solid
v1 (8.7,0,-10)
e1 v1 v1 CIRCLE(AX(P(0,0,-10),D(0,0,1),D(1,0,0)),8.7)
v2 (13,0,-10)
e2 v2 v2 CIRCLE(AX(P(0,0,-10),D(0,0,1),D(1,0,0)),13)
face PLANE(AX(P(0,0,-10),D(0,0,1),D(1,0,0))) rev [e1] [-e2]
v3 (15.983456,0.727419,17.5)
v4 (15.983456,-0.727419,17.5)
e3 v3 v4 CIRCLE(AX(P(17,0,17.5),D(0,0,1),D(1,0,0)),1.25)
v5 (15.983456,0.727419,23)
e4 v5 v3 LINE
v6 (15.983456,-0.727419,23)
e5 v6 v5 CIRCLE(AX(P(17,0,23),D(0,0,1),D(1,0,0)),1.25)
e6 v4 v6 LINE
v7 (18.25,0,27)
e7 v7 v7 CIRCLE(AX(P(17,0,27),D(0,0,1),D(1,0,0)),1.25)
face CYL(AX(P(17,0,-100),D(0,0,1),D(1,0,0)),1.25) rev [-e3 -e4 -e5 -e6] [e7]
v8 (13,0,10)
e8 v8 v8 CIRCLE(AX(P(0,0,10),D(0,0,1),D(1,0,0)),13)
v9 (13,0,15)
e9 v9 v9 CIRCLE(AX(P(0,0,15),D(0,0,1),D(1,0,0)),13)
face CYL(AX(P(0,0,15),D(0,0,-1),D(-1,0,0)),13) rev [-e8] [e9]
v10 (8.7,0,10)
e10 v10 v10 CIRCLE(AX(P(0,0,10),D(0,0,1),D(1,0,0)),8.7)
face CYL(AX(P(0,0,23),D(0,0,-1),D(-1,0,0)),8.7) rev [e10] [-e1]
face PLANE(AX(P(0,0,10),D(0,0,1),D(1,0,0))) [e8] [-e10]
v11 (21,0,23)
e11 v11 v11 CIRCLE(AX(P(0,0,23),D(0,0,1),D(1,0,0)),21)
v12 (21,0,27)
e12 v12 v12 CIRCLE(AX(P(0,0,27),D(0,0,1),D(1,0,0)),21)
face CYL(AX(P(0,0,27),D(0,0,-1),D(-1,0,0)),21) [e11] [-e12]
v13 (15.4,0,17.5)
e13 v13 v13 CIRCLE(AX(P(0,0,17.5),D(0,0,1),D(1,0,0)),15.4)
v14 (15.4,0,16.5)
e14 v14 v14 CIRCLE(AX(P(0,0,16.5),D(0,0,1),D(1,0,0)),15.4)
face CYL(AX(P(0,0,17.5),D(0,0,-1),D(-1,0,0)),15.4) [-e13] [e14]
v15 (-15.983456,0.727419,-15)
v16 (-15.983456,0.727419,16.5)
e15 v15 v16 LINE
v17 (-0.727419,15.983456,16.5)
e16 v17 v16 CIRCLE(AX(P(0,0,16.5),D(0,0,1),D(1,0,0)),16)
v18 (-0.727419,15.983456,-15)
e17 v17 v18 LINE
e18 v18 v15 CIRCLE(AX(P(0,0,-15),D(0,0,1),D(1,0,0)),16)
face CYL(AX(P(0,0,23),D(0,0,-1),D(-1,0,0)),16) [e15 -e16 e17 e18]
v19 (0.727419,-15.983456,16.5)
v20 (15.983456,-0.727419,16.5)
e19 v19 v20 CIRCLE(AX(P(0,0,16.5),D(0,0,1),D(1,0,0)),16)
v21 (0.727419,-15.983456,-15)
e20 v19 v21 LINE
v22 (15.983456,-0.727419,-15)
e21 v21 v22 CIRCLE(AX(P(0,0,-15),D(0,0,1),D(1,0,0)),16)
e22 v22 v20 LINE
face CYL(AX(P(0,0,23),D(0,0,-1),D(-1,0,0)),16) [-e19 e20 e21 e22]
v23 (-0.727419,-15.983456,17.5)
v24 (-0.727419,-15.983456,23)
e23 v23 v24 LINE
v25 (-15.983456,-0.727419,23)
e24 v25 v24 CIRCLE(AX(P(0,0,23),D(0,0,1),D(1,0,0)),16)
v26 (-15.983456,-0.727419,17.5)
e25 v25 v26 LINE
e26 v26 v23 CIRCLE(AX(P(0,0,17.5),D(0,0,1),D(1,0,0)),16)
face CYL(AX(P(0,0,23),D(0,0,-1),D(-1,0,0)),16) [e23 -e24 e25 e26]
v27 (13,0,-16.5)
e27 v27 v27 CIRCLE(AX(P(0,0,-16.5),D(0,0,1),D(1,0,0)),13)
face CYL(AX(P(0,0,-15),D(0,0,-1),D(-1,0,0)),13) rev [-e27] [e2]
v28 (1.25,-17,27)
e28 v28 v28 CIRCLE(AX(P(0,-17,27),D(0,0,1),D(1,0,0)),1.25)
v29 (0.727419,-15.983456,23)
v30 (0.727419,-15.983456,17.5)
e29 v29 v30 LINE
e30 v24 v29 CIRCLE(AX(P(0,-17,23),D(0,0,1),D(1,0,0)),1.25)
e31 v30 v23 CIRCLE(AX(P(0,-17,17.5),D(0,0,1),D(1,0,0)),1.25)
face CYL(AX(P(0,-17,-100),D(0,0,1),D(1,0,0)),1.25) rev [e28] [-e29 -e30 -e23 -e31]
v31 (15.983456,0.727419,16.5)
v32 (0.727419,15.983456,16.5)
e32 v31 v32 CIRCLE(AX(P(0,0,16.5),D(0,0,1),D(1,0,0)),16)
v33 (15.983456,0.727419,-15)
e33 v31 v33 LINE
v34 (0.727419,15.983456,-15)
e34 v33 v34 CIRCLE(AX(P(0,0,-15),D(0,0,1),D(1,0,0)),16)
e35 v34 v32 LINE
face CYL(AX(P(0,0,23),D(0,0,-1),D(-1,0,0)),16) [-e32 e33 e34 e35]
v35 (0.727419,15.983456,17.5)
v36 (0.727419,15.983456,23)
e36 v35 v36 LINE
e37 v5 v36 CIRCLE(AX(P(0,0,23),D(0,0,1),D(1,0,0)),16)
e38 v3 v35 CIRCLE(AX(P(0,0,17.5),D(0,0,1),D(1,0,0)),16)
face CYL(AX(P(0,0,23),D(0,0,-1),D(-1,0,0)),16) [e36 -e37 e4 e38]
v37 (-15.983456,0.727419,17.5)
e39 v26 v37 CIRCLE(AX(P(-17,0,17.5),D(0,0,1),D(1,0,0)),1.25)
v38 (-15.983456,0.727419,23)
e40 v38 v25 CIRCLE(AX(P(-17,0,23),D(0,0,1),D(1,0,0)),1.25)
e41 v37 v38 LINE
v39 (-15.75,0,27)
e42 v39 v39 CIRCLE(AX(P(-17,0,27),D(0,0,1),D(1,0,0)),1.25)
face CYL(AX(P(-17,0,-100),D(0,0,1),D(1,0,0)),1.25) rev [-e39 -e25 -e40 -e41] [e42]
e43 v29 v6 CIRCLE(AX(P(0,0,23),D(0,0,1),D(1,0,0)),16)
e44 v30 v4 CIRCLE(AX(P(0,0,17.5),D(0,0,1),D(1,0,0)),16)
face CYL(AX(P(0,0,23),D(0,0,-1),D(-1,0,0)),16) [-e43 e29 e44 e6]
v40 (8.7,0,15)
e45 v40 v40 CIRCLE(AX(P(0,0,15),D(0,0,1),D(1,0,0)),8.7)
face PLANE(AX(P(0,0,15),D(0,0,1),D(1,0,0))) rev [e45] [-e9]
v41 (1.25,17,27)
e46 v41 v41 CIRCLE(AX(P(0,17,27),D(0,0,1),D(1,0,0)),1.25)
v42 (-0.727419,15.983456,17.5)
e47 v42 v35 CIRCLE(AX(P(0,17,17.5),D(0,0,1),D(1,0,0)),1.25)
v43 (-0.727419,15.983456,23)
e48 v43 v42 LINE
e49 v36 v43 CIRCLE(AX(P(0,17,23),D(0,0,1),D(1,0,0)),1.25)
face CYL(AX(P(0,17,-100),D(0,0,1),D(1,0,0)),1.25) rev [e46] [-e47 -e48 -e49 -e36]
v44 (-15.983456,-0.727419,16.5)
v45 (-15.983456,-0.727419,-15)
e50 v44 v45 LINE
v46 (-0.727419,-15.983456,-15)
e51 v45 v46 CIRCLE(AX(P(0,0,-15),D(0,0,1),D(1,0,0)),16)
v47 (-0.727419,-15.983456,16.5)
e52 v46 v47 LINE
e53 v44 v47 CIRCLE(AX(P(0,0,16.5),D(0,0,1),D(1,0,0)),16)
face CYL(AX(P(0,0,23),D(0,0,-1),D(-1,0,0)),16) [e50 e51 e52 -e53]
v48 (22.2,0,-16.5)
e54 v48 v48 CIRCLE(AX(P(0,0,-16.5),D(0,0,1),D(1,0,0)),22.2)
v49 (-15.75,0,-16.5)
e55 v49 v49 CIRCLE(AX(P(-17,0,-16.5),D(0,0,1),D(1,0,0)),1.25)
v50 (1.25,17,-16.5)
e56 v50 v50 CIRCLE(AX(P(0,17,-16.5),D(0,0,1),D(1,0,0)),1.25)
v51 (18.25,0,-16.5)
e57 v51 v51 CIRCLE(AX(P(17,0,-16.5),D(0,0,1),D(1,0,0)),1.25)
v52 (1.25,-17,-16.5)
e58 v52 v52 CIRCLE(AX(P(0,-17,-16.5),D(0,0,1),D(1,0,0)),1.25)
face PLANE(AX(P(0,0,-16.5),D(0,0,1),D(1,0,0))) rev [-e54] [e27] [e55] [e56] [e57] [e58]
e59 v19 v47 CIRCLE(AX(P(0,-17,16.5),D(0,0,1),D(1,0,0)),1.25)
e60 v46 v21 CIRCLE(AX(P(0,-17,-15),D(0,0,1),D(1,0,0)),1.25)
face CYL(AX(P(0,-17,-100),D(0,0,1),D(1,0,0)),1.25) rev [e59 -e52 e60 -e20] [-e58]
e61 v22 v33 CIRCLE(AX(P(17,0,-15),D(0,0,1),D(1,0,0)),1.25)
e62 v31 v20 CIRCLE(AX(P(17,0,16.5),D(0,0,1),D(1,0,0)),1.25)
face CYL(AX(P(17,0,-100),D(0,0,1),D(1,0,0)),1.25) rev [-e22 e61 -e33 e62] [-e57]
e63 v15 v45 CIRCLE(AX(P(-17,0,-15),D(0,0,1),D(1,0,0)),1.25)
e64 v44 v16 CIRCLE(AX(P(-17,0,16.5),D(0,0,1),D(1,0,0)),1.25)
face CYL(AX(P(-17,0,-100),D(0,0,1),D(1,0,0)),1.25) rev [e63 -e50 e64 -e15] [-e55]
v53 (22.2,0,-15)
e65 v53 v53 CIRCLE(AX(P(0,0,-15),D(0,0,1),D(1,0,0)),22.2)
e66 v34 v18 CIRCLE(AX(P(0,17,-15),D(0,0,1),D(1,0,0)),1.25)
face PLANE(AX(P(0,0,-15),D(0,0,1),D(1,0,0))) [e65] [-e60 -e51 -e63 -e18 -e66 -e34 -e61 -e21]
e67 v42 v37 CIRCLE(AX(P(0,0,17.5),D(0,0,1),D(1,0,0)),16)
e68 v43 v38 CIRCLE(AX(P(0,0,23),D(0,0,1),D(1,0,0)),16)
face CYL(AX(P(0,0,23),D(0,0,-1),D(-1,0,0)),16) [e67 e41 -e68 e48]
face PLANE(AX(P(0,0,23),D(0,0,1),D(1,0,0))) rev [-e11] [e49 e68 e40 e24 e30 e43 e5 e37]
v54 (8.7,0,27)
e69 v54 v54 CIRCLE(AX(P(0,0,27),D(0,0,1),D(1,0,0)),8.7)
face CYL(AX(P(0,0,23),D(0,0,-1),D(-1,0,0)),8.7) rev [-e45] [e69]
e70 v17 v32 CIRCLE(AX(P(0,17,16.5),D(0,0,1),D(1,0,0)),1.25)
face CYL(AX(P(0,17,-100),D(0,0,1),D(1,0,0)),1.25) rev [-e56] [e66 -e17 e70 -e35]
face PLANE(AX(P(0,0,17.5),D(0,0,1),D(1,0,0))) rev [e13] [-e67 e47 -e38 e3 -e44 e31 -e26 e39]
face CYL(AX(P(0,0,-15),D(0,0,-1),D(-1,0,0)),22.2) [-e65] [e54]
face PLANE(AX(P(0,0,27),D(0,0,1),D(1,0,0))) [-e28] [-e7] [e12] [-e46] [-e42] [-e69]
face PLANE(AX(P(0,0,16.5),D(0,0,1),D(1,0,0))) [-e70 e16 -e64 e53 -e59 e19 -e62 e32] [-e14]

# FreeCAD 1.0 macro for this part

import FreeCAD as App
import Part
import Sketcher

doc = App.newDocument("Part")
body = doc.addObject("PartDesign::Body", "Body")

sketch1 = body.newObject("Sketcher::SketchObject", "Sketch")
sketch1.AttachmentSupport = (doc.getObject("XY_Plane"), [""])
sketch1.MapMode = "FlatFace"
sketch1.AttachmentOffset = App.Placement(App.Vector(0, 0, -15), App.Rotation())
sketch1.addGeometry([
    Part.Circle(App.Vector(0, 0, 0), App.Vector(0, 0, 1), 16),
    Part.Circle(App.Vector(0, 0, 0), App.Vector(0, 0, 1), 8.7),
], False)
sketch1.addConstraint([
    Sketcher.Constraint("Coincident", 0, 3, -1, 1),
    Sketcher.Constraint("Coincident", 1, 3, -1, 1),
    Sketcher.Constraint("Diameter", 0, 32.0),
    Sketcher.Constraint("Diameter", 1, 17.4),
])
pad1 = body.newObject("PartDesign::Pad", "Pad")
pad1.Profile = sketch1
pad1.Length = 38

sketch2 = body.newObject("Sketcher::SketchObject", "Sketch001")
sketch2.AttachmentSupport = (doc.getObject("XY_Plane"), [""])
sketch2.MapMode = "FlatFace"
sketch2.AttachmentOffset = App.Placement(App.Vector(0, 0, -16.5), App.Rotation())
sketch2.addGeometry([
    Part.Circle(App.Vector(0, 0, 0), App.Vector(0, 0, 1), 22.2),
    Part.Circle(App.Vector(0, 0, 0), App.Vector(0, 0, 1), 13),
], False)
sketch2.addConstraint([
    Sketcher.Constraint("Coincident", 0, 3, -1, 1),
    Sketcher.Constraint("Coincident", 1, 3, -1, 1),
    Sketcher.Constraint("Diameter", 1, 26.0),
    Sketcher.Constraint("Diameter", 0, 44.4),
])
pad2 = body.newObject("PartDesign::Pad", "Pad001")
pad2.Profile = sketch2
pad2.Length = 1.5

sketch3 = body.newObject("Sketcher::SketchObject", "Sketch002")
sketch3.AttachmentSupport = (doc.getObject("XY_Plane"), [""])
sketch3.MapMode = "FlatFace"
sketch3.AttachmentOffset = App.Placement(App.Vector(0, 0, 23), App.Rotation())
sketch3.addGeometry([
    Part.Circle(App.Vector(0, 0, 0), App.Vector(0, 0, 1), 21),
    Part.Circle(App.Vector(0, 0, 0), App.Vector(0, 0, 1), 8.7),
], False)
sketch3.addConstraint([
    Sketcher.Constraint("Coincident", 0, 3, -1, 1),
    Sketcher.Constraint("Coincident", 1, 3, -1, 1),
    Sketcher.Constraint("Diameter", 0, 42.0),
    Sketcher.Constraint("Diameter", 1, 17.4),
])
pad3 = body.newObject("PartDesign::Pad", "Pad002")
pad3.Profile = sketch3
pad3.Length = 4

sketch4 = body.newObject("Sketcher::SketchObject", "Sketch003")
sketch4.AttachmentSupport = (doc.getObject("XY_Plane"), [""])
sketch4.MapMode = "FlatFace"
sketch4.AttachmentOffset = App.Placement(App.Vector(0, 0, -15), App.Rotation())
sketch4.addGeometry(Part.Circle(App.Vector(0, 0, 0), App.Vector(0, 0, 1), 13), False)
sketch4.addConstraint([
    Sketcher.Constraint("Coincident", 0, 3, -1, 1),
    Sketcher.Constraint("Diameter", 0, 26.0),
])
pocket1 = body.newObject("PartDesign::Pocket", "Pocket")
pocket1.Profile = sketch4
pocket1.Length = 5
pocket1.Reversed = True

sketch5 = body.newObject("Sketcher::SketchObject", "Sketch004")
sketch5.AttachmentSupport = (doc.getObject("XY_Plane"), [""])
sketch5.MapMode = "FlatFace"
sketch5.AttachmentOffset = App.Placement(App.Vector(0, 0, 10), App.Rotation())
sketch5.addGeometry(Part.Circle(App.Vector(0, 0, 0), App.Vector(0, 0, 1), 13), False)
sketch5.addConstraint([
    Sketcher.Constraint("Coincident", 0, 3, -1, 1),
    Sketcher.Constraint("Diameter", 0, 26.0),
])
pocket2 = body.newObject("PartDesign::Pocket", "Pocket001")
pocket2.Profile = sketch5
pocket2.Length = 5
pocket2.Reversed = True

sketch6 = body.newObject("Sketcher::SketchObject", "Sketch005")
sketch6.AttachmentSupport = (doc.getObject("XY_Plane"), [""])
sketch6.MapMode = "FlatFace"
sketch6.AttachmentOffset = App.Placement(App.Vector(0, 0, 16.5), App.Rotation())
sketch6.addGeometry([
    Part.Circle(App.Vector(0, 0, 0), App.Vector(0, 0, 1), 17),
    Part.Circle(App.Vector(0, 0, 0), App.Vector(0, 0, 1), 15.4),
], False)
sketch6.addConstraint([
    Sketcher.Constraint("Coincident", 0, 3, -1, 1),
    Sketcher.Constraint("Coincident", 1, 3, -1, 1),
    Sketcher.Constraint("Diameter", 0, 34.0),
    Sketcher.Constraint("Diameter", 1, 30.8),
])
pocket3 = body.newObject("PartDesign::Pocket", "Pocket002")
pocket3.Profile = sketch6
pocket3.Length = 1
pocket3.Reversed = True

sketch7 = body.newObject("Sketcher::SketchObject", "Sketch006")
sketch7.AttachmentSupport = (doc.getObject("XY_Plane"), [""])
sketch7.MapMode = "FlatFace"
sketch7.addGeometry([
    Part.Circle(App.Vector(17, 0, 0), App.Vector(0, 0, 1), 1.25),
    Part.Circle(App.Vector(0, 17, 0), App.Vector(0, 0, 1), 1.25),
    Part.Circle(App.Vector(-17, 0, 0), App.Vector(0, 0, 1), 1.25),
    Part.Circle(App.Vector(0, -17, 0), App.Vector(0, 0, 1), 1.25),
], False)
sketch7.addConstraint([
    Sketcher.Constraint("Equal", 0, 1),
    Sketcher.Constraint("Equal", 1, 2),
    Sketcher.Constraint("Equal", 2, 3),
    Sketcher.Constraint("Symmetric", 0, 3, 2, 3, -1, 1),
    Sketcher.Constraint("Symmetric", 1, 3, 3, 3, -1, 1),
    Sketcher.Constraint("PointOnObject", 0, 3, -1),
    Sketcher.Constraint("PointOnObject", 1, 3, -2),
    Sketcher.Constraint("Diameter", 0, 2.5),
    Sketcher.Constraint("DistanceX", -1, 1, 0, 3, 17.0),
    Sketcher.Constraint("DistanceY", -1, 1, 1, 3, 17.0),
])
pocket4 = body.newObject("PartDesign::Pocket", "Pocket003")
pocket4.Profile = sketch7
pocket4.Length = 200
pocket4.Midplane = True

doc.recompute()
